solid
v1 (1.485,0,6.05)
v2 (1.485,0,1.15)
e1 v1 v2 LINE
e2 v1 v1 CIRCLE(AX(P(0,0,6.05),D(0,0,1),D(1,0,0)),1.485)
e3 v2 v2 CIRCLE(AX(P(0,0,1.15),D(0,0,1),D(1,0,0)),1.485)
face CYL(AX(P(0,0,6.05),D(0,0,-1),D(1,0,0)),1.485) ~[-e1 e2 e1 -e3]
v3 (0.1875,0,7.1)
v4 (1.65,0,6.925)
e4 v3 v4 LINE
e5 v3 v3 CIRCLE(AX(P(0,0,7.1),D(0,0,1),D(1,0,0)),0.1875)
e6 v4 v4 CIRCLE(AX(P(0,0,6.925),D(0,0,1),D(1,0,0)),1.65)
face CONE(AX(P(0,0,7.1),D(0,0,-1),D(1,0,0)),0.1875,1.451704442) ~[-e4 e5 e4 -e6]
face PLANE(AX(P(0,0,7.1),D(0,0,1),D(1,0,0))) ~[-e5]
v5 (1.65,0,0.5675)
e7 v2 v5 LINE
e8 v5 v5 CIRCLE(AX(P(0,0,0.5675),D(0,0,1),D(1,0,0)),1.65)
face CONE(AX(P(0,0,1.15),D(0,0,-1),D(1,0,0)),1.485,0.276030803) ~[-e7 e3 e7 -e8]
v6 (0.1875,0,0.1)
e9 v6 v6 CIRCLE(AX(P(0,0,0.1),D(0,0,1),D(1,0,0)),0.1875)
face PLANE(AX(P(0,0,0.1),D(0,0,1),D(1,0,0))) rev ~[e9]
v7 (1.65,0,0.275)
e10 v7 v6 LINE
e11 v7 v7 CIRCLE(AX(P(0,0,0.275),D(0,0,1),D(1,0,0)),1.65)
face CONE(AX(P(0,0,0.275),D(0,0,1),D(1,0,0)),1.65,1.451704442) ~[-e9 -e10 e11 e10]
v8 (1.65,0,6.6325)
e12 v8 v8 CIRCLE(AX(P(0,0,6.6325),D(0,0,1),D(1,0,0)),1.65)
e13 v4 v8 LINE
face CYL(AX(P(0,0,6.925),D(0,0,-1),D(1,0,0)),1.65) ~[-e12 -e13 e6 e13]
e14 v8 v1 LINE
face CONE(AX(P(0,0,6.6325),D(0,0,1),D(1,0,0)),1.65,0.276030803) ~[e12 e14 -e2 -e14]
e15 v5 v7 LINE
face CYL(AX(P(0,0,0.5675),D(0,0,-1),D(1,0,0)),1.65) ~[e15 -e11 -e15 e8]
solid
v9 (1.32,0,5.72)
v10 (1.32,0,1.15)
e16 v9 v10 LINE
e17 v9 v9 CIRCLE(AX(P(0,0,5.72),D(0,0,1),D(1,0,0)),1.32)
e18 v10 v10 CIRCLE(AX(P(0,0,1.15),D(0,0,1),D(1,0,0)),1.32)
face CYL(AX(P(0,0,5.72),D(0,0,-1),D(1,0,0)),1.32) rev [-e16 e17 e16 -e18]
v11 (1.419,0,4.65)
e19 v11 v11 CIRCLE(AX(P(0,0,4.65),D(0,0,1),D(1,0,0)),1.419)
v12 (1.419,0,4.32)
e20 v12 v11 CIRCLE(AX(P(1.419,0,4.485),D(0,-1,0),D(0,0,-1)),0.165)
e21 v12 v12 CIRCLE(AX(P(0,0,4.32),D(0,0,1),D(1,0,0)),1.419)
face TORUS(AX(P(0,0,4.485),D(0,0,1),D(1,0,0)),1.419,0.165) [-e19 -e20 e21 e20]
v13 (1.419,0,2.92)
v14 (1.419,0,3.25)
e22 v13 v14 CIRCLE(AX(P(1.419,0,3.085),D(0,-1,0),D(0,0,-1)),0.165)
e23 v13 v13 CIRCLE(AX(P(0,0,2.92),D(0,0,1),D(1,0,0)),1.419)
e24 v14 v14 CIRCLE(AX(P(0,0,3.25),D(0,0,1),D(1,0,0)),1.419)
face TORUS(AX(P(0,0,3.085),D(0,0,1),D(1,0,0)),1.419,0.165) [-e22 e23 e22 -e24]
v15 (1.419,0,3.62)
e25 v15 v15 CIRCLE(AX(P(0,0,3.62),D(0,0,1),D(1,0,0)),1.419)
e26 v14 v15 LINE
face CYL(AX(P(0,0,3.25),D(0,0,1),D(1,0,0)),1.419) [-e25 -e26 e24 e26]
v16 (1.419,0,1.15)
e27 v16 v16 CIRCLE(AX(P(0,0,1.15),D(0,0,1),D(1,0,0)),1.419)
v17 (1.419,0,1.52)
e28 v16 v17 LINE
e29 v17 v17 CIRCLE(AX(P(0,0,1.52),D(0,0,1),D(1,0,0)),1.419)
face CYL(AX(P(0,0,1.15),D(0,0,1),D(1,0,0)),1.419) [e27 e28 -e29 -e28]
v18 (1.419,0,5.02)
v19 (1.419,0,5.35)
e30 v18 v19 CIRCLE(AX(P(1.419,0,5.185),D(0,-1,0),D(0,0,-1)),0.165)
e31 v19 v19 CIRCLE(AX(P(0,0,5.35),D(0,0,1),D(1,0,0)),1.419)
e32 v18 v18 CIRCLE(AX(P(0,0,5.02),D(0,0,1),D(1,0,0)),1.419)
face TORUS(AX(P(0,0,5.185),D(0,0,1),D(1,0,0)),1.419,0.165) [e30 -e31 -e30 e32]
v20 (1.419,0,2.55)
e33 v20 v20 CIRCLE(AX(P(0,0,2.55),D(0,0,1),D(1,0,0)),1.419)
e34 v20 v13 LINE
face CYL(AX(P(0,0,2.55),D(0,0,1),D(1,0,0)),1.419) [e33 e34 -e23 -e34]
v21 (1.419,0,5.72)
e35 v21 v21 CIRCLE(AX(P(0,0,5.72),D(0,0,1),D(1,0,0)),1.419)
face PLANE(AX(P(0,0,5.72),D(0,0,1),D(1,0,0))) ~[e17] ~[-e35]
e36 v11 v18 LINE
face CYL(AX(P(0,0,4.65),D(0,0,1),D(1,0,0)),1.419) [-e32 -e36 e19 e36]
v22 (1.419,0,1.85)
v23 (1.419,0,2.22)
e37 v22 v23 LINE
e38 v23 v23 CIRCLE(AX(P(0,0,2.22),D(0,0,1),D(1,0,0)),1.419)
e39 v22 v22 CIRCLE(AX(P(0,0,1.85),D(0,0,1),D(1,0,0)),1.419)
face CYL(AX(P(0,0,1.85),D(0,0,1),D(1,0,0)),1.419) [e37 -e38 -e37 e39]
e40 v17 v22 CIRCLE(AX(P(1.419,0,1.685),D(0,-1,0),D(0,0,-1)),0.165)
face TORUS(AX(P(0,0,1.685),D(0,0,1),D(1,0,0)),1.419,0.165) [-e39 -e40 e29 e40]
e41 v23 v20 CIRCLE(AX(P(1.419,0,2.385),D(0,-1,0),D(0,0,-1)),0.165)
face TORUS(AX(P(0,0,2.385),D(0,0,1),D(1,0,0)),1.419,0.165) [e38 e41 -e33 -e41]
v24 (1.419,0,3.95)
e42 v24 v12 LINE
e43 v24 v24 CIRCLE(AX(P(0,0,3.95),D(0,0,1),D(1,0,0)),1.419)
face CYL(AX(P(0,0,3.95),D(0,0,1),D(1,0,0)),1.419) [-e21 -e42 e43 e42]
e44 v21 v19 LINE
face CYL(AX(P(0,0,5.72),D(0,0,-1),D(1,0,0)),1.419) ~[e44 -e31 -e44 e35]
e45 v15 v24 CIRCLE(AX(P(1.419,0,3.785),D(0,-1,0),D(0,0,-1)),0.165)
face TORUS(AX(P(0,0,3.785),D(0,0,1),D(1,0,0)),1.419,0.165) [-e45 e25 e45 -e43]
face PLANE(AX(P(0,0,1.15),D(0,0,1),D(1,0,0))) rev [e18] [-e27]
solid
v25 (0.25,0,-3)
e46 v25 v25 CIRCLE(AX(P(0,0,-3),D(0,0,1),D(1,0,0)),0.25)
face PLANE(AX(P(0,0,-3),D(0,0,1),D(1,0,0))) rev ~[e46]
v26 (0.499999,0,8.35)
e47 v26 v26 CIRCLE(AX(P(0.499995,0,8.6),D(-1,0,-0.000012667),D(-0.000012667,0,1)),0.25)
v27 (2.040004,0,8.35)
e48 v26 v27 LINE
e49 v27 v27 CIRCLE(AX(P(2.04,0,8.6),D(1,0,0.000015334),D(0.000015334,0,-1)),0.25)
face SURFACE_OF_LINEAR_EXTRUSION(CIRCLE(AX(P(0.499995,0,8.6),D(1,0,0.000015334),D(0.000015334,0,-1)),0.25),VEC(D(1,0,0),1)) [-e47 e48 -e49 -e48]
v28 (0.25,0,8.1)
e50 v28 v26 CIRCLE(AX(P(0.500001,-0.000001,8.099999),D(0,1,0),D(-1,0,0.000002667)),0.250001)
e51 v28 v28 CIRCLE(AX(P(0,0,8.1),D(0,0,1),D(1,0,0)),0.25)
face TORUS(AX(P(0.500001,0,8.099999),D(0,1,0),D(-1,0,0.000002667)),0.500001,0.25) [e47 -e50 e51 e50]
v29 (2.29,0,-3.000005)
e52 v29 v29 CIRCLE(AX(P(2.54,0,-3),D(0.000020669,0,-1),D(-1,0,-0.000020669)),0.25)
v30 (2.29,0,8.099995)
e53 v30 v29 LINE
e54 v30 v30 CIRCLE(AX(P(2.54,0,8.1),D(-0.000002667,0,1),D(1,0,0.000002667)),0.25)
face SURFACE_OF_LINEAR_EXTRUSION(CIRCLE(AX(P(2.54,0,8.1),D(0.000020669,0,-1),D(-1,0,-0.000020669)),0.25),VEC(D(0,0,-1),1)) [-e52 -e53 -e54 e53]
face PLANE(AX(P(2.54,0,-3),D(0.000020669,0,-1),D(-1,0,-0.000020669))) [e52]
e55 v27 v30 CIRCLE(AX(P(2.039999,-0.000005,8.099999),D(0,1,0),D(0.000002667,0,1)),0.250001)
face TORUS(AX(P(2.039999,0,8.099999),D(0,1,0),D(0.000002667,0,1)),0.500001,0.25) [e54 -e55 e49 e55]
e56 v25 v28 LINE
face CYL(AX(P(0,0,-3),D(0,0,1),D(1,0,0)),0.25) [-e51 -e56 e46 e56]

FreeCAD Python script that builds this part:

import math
import FreeCAD as App
import Part
import Sketcher

V = App.Vector

doc = App.newDocument("Part")
body = doc.addObject("PartDesign::Body", "Body")

# Sketch on XY plane
sketch1 = body.newObject("Sketcher::SketchObject", "Sketch")
sketch1.AttachmentSupport = (doc.getObject("XY_Plane"), [""])
sketch1.MapMode = "FlatFace"
sketch1.AttachmentOffset = App.Placement(V(0, 0, -2), App.Rotation())
sketch1.addGeometry(Part.Circle(V(0, 0, 0), V(0, 0, 1), 0.25), False)
sketch1.addConstraint(Sketcher.Constraint("Coincident", 0, 3, -1, 1))
sketch1.addConstraint(Sketcher.Constraint("Diameter", 0, 0.5))

# Sketch on XZ plane
sketch2 = body.newObject("Sketcher::SketchObject", "Sketch001")
sketch2.AttachmentSupport = (doc.getObject("XZ_Plane"), [""])
sketch2.MapMode = "FlatFace"
sketch2.addGeometry(Part.LineSegment(V(0, -3, 0), V(0, 8.1, 0)), False)
sketch2.addGeometry(Part.ArcOfCircle(Part.Circle(V(0.5, 8.1, 0), V(0, 0, 1), 0.5), math.radians(90), math.radians(180)), False)
sketch2.addGeometry(Part.LineSegment(V(0.5, 8.6, 0), V(2, 8.6, 0)), False)
sketch2.addGeometry(Part.ArcOfCircle(Part.Circle(V(2, 8.1, 0), V(0, 0, 1), 0.5), math.radians(0), math.radians(90)), False)
sketch2.addGeometry(Part.LineSegment(V(2.5, 8.1, 0), V(2.5, -3, 0)), False)
sketch2.addConstraint(Sketcher.Constraint("Coincident", 0, 2, 1, 2))
sketch2.addConstraint(Sketcher.Constraint("Coincident", 1, 1, 2, 1))
sketch2.addConstraint(Sketcher.Constraint("Coincident", 2, 2, 3, 2))
sketch2.addConstraint(Sketcher.Constraint("Coincident", 3, 1, 4, 1))
sketch2.addConstraint(Sketcher.Constraint("Vertical", 0))
sketch2.addConstraint(Sketcher.Constraint("Horizontal", 2))
sketch2.addConstraint(Sketcher.Constraint("Vertical", 4))
sketch2.addConstraint(Sketcher.Constraint("Equal", 1, 3))
sketch2.addConstraint(Sketcher.Constraint("PointOnObject", 0, 1, -2))
sketch2.addConstraint(Sketcher.Constraint("Horizontal", 3, 3, 0, 2))
sketch2.addConstraint(Sketcher.Constraint("Horizontal", 0, 2, 3, 1))
sketch2.addConstraint(Sketcher.Constraint("Horizontal", 0, 1, 4, 2))
sketch2.addConstraint(Sketcher.Constraint("Vertical", 3, 3, 2, 2))
sketch2.addConstraint(Sketcher.Constraint("Radius", 1, 0.500001))
sketch2.addConstraint(Sketcher.Constraint("DistanceY", 0, 1, 0, 2, 11.1))
sketch2.addConstraint(Sketcher.Constraint("DistanceY", 0, 1, -1, 1, 3.0))
sketch2.addConstraint(Sketcher.Constraint("DistanceX", -1, 1, 3, 3, 2.039999))
sketch2.addConstraint(Sketcher.Constraint("DistanceX", 2, 1, 2, 2, 1.540005))
doc.recompute()

additivepipe = body.newObject("PartDesign::AdditivePipe", "AdditivePipe")
additivepipe.Profile = sketch1
additivepipe.Spine = (sketch2, ["Edge1", "Edge2", "Edge3", "Edge4", "Edge5"])
body2 = doc.addObject("PartDesign::Body", "Body001")

# Sketch on XZ plane
sketch3 = body2.newObject("Sketcher::SketchObject", "Sketch002")
sketch3.AttachmentSupport = (doc.getObject("XZ_Plane001"), [""])
sketch3.MapMode = "FlatFace"
sketch3.addGeometry(Part.LineSegment(V(0, 7.1, 0), V(0, 0.1, 0)), False)
sketch3.addGeometry(Part.LineSegment(V(0, 0.1, 0), V(0.19, 0.1, 0)), False)
sketch3.addGeometry(Part.LineSegment(V(0.19, 0.1, 0), V(1.65, 0.28, 0)), False)
sketch3.addGeometry(Part.LineSegment(V(1.65, 0.28, 0), V(1.65, 0.57, 0)), False)
sketch3.addGeometry(Part.LineSegment(V(1.65, 0.57, 0), V(1.49, 1.15, 0)), False)
sketch3.addGeometry(Part.LineSegment(V(1.49, 1.15, 0), V(1.49, 6.05, 0)), False)
sketch3.addGeometry(Part.LineSegment(V(1.49, 6.05, 0), V(1.65, 6.63, 0)), False)
sketch3.addGeometry(Part.LineSegment(V(1.65, 6.63, 0), V(1.65, 6.92, 0)), False)
sketch3.addGeometry(Part.LineSegment(V(1.65, 6.92, 0), V(0.19, 7.1, 0)), False)
sketch3.addGeometry(Part.LineSegment(V(0.19, 7.1, 0), V(0, 7.1, 0)), False)
sketch3.addConstraint(Sketcher.Constraint("Coincident", 0, 2, 1, 1))
sketch3.addConstraint(Sketcher.Constraint("Coincident", 1, 2, 2, 1))
sketch3.addConstraint(Sketcher.Constraint("Coincident", 2, 2, 3, 1))
sketch3.addConstraint(Sketcher.Constraint("Coincident", 3, 2, 4, 1))
sketch3.addConstraint(Sketcher.Constraint("Coincident", 4, 2, 5, 1))
sketch3.addConstraint(Sketcher.Constraint("Coincident", 5, 2, 6, 1))
sketch3.addConstraint(Sketcher.Constraint("Coincident", 6, 2, 7, 1))
sketch3.addConstraint(Sketcher.Constraint("Coincident", 7, 2, 8, 1))
sketch3.addConstraint(Sketcher.Constraint("Coincident", 8, 2, 9, 1))
sketch3.addConstraint(Sketcher.Constraint("Coincident", 9, 2, 0, 1))
sketch3.addConstraint(Sketcher.Constraint("Vertical", 0))
sketch3.addConstraint(Sketcher.Constraint("Horizontal", 1))
sketch3.addConstraint(Sketcher.Constraint("Vertical", 3))
sketch3.addConstraint(Sketcher.Constraint("Vertical", 5))
sketch3.addConstraint(Sketcher.Constraint("Vertical", 7))
sketch3.addConstraint(Sketcher.Constraint("Horizontal", 9))
sketch3.addConstraint(Sketcher.Constraint("PointOnObject", 0, 2, -2))
sketch3.addConstraint(Sketcher.Constraint("Vertical", 3, 2, 6, 2))
sketch3.addConstraint(Sketcher.Constraint("Vertical", 1, 2, 8, 2))
sketch3.addConstraint(Sketcher.Constraint("Equal", 3, 7))
sketch3.addConstraint(Sketcher.Constraint("Equal", 4, 6))
sketch3.addConstraint(Sketcher.Constraint("Equal", 2, 8))
sketch3.addConstraint(Sketcher.Constraint("DistanceY", 0, 2, 0, 1, 7.0))
sketch3.addConstraint(Sketcher.Constraint("DistanceY", 5, 1, 5, 2, 4.9))
sketch3.addConstraint(Sketcher.Constraint("DistanceY", -1, 1, 0, 2, 0.1))
sketch3.addConstraint(Sketcher.Constraint("DistanceX", -1, 1, 2, 2, 1.65))
sketch3.addConstraint(Sketcher.Constraint("DistanceY", 2, 2, 7, 2, 6.65))
sketch3.addConstraint(Sketcher.Constraint("DistanceX", 1, 1, 1, 2, 0.1875))
sketch3.addConstraint(Sketcher.Constraint("DistanceY", 3, 1, 3, 2, 0.2925))
sketch3.addConstraint(Sketcher.Constraint("DistanceX", -1, 1, 4, 2, 1.485))
revolution = body2.newObject("PartDesign::Revolution", "Revolution")
revolution.Profile = sketch3
revolution.ReferenceAxis = (sketch3, ["V_Axis"])
revolution.Angle = 360
body3 = doc.addObject("PartDesign::Body", "Body002")

# Sketch on XZ plane
sketch4 = body3.newObject("Sketcher::SketchObject", "Sketch003")
sketch4.AttachmentSupport = (doc.getObject("XZ_Plane002"), [""])
sketch4.MapMode = "FlatFace"
sketch4.addGeometry(Part.LineSegment(V(1.32, 5.72, 0), V(1.32, 1.15, 0)), False)
sketch4.addGeometry(Part.LineSegment(V(1.32, 1.15, 0), V(1.42, 1.15, 0)), False)
sketch4.addGeometry(Part.LineSegment(V(1.42, 1.15, 0), V(1.42, 1.52, 0)), False)
sketch4.addGeometry(Part.ArcOfCircle(Part.Circle(V(1.42, 1.69, 0), V(0, 0, 1), 0.17), math.radians(-90), math.radians(90)), False)
sketch4.addGeometry(Part.LineSegment(V(1.42, 1.85, 0), V(1.42, 2.22, 0)), False)
sketch4.addGeometry(Part.ArcOfCircle(Part.Circle(V(1.42, 2.38, 0), V(0, 0, 1), 0.17), math.radians(-90), math.radians(90)), False)
sketch4.addGeometry(Part.LineSegment(V(1.42, 2.55, 0), V(1.42, 2.92, 0)), False)
sketch4.addGeometry(Part.ArcOfCircle(Part.Circle(V(1.42, 3.08, 0), V(0, 0, 1), 0.17), math.radians(-90), math.radians(90)), False)
sketch4.addGeometry(Part.LineSegment(V(1.42, 3.25, 0), V(1.42, 3.62, 0)), False)
sketch4.addGeometry(Part.ArcOfCircle(Part.Circle(V(1.42, 3.79, 0), V(0, 0, 1), 0.17), math.radians(-90), math.radians(90)), False)
sketch4.addGeometry(Part.LineSegment(V(1.42, 3.95, 0), V(1.42, 4.32, 0)), False)
sketch4.addGeometry(Part.ArcOfCircle(Part.Circle(V(1.42, 4.49, 0), V(0, 0, 1), 0.17), math.radians(-90), math.radians(90)), False)
sketch4.addGeometry(Part.LineSegment(V(1.42, 4.65, 0), V(1.42, 5.02, 0)), False)
sketch4.addGeometry(Part.ArcOfCircle(Part.Circle(V(1.42, 5.18, 0), V(0, 0, 1), 0.17), math.radians(-90), math.radians(90)), False)
sketch4.addGeometry(Part.LineSegment(V(1.42, 5.35, 0), V(1.42, 5.72, 0)), False)
sketch4.addGeometry(Part.LineSegment(V(1.42, 5.72, 0), V(1.32, 5.72, 0)), False)
sketch4.addConstraint(Sketcher.Constraint("Coincident", 0, 2, 1, 1))
sketch4.addConstraint(Sketcher.Constraint("Coincident", 1, 2, 2, 1))
sketch4.addConstraint(Sketcher.Constraint("Coincident", 2, 2, 3, 1))
sketch4.addConstraint(Sketcher.Constraint("Coincident", 3, 2, 4, 1))
sketch4.addConstraint(Sketcher.Constraint("Coincident", 4, 2, 5, 1))
sketch4.addConstraint(Sketcher.Constraint("Coincident", 5, 2, 6, 1))
sketch4.addConstraint(Sketcher.Constraint("Coincident", 6, 2, 7, 1))
sketch4.addConstraint(Sketcher.Constraint("Coincident", 7, 2, 8, 1))
sketch4.addConstraint(Sketcher.Constraint("Coincident", 8, 2, 9, 1))
sketch4.addConstraint(Sketcher.Constraint("Coincident", 9, 2, 10, 1))
sketch4.addConstraint(Sketcher.Constraint("Coincident", 10, 2, 11, 1))
sketch4.addConstraint(Sketcher.Constraint("Coincident", 11, 2, 12, 1))
sketch4.addConstraint(Sketcher.Constraint("Coincident", 12, 2, 13, 1))
sketch4.addConstraint(Sketcher.Constraint("Coincident", 13, 2, 14, 1))
sketch4.addConstraint(Sketcher.Constraint("Coincident", 14, 2, 15, 1))
sketch4.addConstraint(Sketcher.Constraint("Coincident", 15, 2, 0, 1))
sketch4.addConstraint(Sketcher.Constraint("Vertical", 0))
sketch4.addConstraint(Sketcher.Constraint("Horizontal", 1))
sketch4.addConstraint(Sketcher.Constraint("Vertical", 2))
sketch4.addConstraint(Sketcher.Constraint("Vertical", 4))
sketch4.addConstraint(Sketcher.Constraint("Vertical", 6))
sketch4.addConstraint(Sketcher.Constraint("Vertical", 8))
sketch4.addConstraint(Sketcher.Constraint("Vertical", 10))
sketch4.addConstraint(Sketcher.Constraint("Vertical", 12))
sketch4.addConstraint(Sketcher.Constraint("Vertical", 14))
sketch4.addConstraint(Sketcher.Constraint("Horizontal", 15))
sketch4.addConstraint(Sketcher.Constraint("Equal", 3, 5))
sketch4.addConstraint(Sketcher.Constraint("Equal", 5, 7))
sketch4.addConstraint(Sketcher.Constraint("Equal", 7, 9))
sketch4.addConstraint(Sketcher.Constraint("Equal", 9, 11))
sketch4.addConstraint(Sketcher.Constraint("Equal", 11, 13))
sketch4.addConstraint(Sketcher.Constraint("Vertical", 3, 3, 5, 3))
sketch4.addConstraint(Sketcher.Constraint("Vertical", 5, 3, 7, 3))
sketch4.addConstraint(Sketcher.Constraint("Vertical", 7, 3, 9, 3))
sketch4.addConstraint(Sketcher.Constraint("Vertical", 9, 3, 11, 3))
sketch4.addConstraint(Sketcher.Constraint("Vertical", 11, 3, 13, 3))
sketch4.addConstraint(Sketcher.Constraint("Vertical", 13, 3, 1, 2))
sketch4.addConstraint(Sketcher.Constraint("Vertical", 2, 2, 3, 2))
sketch4.addConstraint(Sketcher.Constraint("Vertical", 4, 2, 5, 2))
sketch4.addConstraint(Sketcher.Constraint("Vertical", 6, 2, 7, 2))
sketch4.addConstraint(Sketcher.Constraint("Vertical", 8, 2, 9, 2))
sketch4.addConstraint(Sketcher.Constraint("Vertical", 10, 2, 11, 2))
sketch4.addConstraint(Sketcher.Constraint("Vertical", 12, 2, 13, 2))
sketch4.addConstraint(Sketcher.Constraint("Equal", 2, 4))
sketch4.addConstraint(Sketcher.Constraint("Equal", 4, 6))
sketch4.addConstraint(Sketcher.Constraint("Equal", 6, 8))
sketch4.addConstraint(Sketcher.Constraint("Equal", 8, 10))
sketch4.addConstraint(Sketcher.Constraint("Equal", 10, 12))
sketch4.addConstraint(Sketcher.Constraint("Equal", 12, 14))
sketch4.addConstraint(Sketcher.Constraint("Radius", 3, 0.165))
sketch4.addConstraint(Sketcher.Constraint("DistanceY", 0, 2, 0, 1, 4.57))
sketch4.addConstraint(Sketcher.Constraint("DistanceX", 1, 1, 1, 2, 0.099))
sketch4.addConstraint(Sketcher.Constraint("DistanceX", -1, 1, 0, 2, 1.32))
sketch4.addConstraint(Sketcher.Constraint("DistanceY", -1, 1, 0, 2, 1.15))
revolution2 = body3.newObject("PartDesign::Revolution", "Revolution001")
revolution2.Profile = sketch4
revolution2.ReferenceAxis = (sketch4, ["V_Axis"])
revolution2.Angle = 360

doc.recompute()
